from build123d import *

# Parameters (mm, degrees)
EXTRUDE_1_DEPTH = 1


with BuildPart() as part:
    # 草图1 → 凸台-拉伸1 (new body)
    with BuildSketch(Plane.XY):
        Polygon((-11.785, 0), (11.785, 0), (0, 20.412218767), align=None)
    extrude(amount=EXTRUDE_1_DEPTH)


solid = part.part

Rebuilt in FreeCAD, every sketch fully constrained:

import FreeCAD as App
import Part
import Sketcher
from FreeCAD import Vector
Q = App.Units.Quantity

doc = App.newDocument("Part")
body = doc.addObject("PartDesign::Body", "Body")

sketch1 = doc.addObject("Sketcher::SketchObject", "Sketch")
body.addObject(sketch1)
sketch1.AttachmentSupport = (doc.XY_Plane, [""])
sketch1.MapMode = "FlatFace"
sketch1.addGeometry([
    Part.LineSegment(Vector(-12, 0, 0), Vector(12, 0, 0)),
    Part.LineSegment(Vector(12, 0, 0), Vector(0, 20, 0)),
    Part.LineSegment(Vector(0, 20, 0), Vector(-12, 0, 0)),
], False)
sketch1.addConstraint([
    Sketcher.Constraint("Coincident", 0, 2, 1, 1),
    Sketcher.Constraint("Coincident", 1, 2, 2, 1),
    Sketcher.Constraint("Coincident", 2, 2, 0, 1),
    Sketcher.Constraint("Horizontal", 0),
    Sketcher.Constraint("Symmetric", 0, 2, 2, 2, -1, 1),
    Sketcher.Constraint("PointOnObject", 1, 2, -2),
    Sketcher.Constraint("Angle", 1, Q("120 deg")),
    Sketcher.Constraint("DistanceX", 0, 1, 0, 2, Q("23.57 mm")),
])
pad1 = doc.addObject("PartDesign::Pad", "Pad")
body.addObject(pad1)
pad1.Profile = sketch1
pad1.Length = 1

doc.recompute()
